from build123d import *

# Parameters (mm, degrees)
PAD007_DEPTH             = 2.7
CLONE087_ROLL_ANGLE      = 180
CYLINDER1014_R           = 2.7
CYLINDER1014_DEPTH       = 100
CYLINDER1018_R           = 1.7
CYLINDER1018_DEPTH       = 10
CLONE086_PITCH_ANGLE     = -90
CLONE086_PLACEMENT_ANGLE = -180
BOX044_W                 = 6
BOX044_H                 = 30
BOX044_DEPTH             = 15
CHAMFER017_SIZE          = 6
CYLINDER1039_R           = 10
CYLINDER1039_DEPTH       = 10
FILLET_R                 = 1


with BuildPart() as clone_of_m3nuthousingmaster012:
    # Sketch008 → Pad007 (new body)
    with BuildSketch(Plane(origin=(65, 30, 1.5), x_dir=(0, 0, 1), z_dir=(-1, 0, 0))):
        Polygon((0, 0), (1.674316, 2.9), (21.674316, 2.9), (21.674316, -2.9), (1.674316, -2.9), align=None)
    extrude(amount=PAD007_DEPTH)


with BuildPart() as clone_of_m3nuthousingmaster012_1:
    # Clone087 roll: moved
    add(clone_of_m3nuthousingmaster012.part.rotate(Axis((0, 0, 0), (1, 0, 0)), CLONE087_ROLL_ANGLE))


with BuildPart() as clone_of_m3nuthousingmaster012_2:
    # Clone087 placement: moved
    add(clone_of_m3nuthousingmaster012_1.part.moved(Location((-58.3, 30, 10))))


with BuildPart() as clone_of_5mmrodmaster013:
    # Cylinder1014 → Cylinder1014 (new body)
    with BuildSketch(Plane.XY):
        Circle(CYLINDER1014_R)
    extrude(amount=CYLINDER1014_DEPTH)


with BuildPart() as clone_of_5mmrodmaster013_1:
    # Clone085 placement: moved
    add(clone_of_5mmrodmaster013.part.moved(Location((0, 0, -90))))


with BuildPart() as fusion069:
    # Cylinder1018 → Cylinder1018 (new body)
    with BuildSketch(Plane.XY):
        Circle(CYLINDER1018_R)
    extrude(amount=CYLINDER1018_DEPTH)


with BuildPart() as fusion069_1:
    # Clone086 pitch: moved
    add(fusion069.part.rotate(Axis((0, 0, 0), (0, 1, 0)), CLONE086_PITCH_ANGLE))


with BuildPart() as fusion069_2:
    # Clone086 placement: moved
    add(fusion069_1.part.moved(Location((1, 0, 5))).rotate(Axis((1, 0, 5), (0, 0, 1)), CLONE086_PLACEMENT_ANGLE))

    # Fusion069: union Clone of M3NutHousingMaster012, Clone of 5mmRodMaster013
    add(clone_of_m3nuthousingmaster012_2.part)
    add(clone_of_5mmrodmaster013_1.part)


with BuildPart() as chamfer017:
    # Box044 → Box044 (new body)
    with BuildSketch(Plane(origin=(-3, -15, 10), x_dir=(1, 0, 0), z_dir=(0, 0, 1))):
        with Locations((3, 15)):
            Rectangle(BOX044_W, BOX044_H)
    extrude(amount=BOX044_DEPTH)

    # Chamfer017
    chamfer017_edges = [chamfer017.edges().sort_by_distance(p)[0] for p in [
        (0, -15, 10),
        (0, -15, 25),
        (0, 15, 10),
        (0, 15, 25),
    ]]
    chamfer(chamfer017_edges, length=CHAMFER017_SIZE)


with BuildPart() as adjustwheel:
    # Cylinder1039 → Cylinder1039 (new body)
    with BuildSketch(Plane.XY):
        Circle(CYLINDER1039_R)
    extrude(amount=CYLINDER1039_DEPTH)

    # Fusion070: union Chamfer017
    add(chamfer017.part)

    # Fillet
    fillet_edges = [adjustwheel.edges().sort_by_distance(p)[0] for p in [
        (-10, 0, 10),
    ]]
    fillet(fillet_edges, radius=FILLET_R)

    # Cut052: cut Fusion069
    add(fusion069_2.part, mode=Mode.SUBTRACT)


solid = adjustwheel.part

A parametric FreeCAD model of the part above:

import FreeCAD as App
import Part
import Sketcher
from FreeCAD import Vector
Q = App.Units.Quantity


def edges_at(feature, points):
    """Names of the edges that pass closest to the given points."""
    edges = feature.Shape.Edges
    near = lambda p: min(range(len(edges)), key=lambda i: edges[i].distToShape(Part.Vertex(*p))[0])
    return sorted({f"Edge{near(p) + 1}" for p in points})

doc = App.newDocument("Part")
params = doc.addObject("Spreadsheet::Sheet", "Params")
for row, (alias, value) in enumerate([
    ("sketch1_height", "20 mm"),
    ("sketch1_width", "5.8 mm"),
    ("pad1_length", "2.7 mm"),
    ("sketch2_diameter", "5.4 mm"),
    ("pad2_length", "100 mm"),
    ("sketch3_diameter", "3.4 mm"),
    ("pad3_length", "10 mm"),
    ("sketch4_width", "6 mm"),
    ("sketch4_height", "30 mm"),
    ("pad4_length", "15 mm"),
    ("chamfer_size", "6 mm"),
    ("sketch5_diameter", "20 mm"),
    ("pad5_length", "10 mm"),
    ("fillet_radius", "1 mm"),
], start=1):
    params.set(f"A{row}", alias)
    params.set(f"B{row}", "=" + value)
    params.setAlias(f"B{row}", alias)

body = doc.addObject("PartDesign::Body", "Body")

sketch1 = body.newObject("Sketcher::SketchObject", "Sketch")
sketch1.AttachmentSupport = (doc.getObject("YZ_Plane"), [""])
sketch1.MapMode = "FlatFace"
sketch1.AttachmentOffset = App.Placement(Vector(0, 0, 65), App.Rotation())
sketch1.addGeometry(Part.LineSegment(Vector(32.9, 3.2, 0), Vector(30, 1.5, 0)), False)
sketch1.addGeometry(Part.LineSegment(Vector(30, 1.5, 0), Vector(27.1, 3.2, 0)), False)
sketch1.addGeometry(Part.LineSegment(Vector(27.1, 3.2, 0), Vector(27.1, 23.2, 0)), False)
sketch1.addGeometry(Part.LineSegment(Vector(27.1, 23.2, 0), Vector(32.9, 23.2, 0)), False)
sketch1.addGeometry(Part.LineSegment(Vector(32.9, 23.2, 0), Vector(32.9, 3.2, 0)), False)
sketch1.addConstraint(Sketcher.Constraint("Coincident", 0, 2, 1, 1))
sketch1.addConstraint(Sketcher.Constraint("Coincident", 1, 2, 2, 1))
sketch1.addConstraint(Sketcher.Constraint("Coincident", 2, 2, 3, 1))
sketch1.addConstraint(Sketcher.Constraint("Coincident", 3, 2, 4, 1))
sketch1.addConstraint(Sketcher.Constraint("Coincident", 4, 2, 0, 1))
sketch1.addConstraint(Sketcher.Constraint("Vertical", 2))
sketch1.addConstraint(Sketcher.Constraint("Horizontal", 3))
sketch1.addConstraint(Sketcher.Constraint("Vertical", 4))
sketch1.addConstraint(Sketcher.Constraint("Horizontal", 1, 2, 4, 2))
sketch1.addConstraint(Sketcher.Constraint("Equal", 0, 1))
sketch1.addConstraint(Sketcher.Constraint("DistanceY", 2, 1, 2, 2, Q("20 mm")))
sketch1.addConstraint(Sketcher.Constraint("Angle", 0, Q("-149.999997 deg")))
sketch1.addConstraint(Sketcher.Constraint("DistanceX", 3, 1, 3, 2, Q("5.8 mm")))
sketch1.addConstraint(Sketcher.Constraint("DistanceX", -1, 1, 0, 2, Q("30 mm")))
sketch1.addConstraint(Sketcher.Constraint("DistanceY", -1, 1, 0, 2, Q("1.5 mm")))
sketch1.setExpression("Constraints[10]", "Params.sketch1_height")
sketch1.setExpression("Constraints[12]", "Params.sketch1_width")
pad1 = body.newObject("PartDesign::Pad", "Pad")
pad1.Profile = sketch1
pad1.setExpression("Length", "Params.pad1_length")
pad1.Reversed = True
body2 = doc.addObject("PartDesign::Body", "Body001")
doc.recompute()

body.Placement = App.Placement(Vector(0, 0, 0), App.Rotation(Vector(1, 0, 0), 180))
boolean = body2.newObject("PartDesign::Boolean", "Boolean")
boolean.Type = "Fuse"
boolean.addObjects([body])
body3 = doc.addObject("PartDesign::Body", "Body002")
doc.recompute()

body2.Placement = App.Placement(Vector(-58.3, 30, 10), App.Rotation(Vector(0, 0, 1), 0))
boolean2 = body3.newObject("PartDesign::Boolean", "Boolean001")
boolean2.Type = "Fuse"
boolean2.addObjects([body2])
body4 = doc.addObject("PartDesign::Body", "Body003")

sketch2 = body4.newObject("Sketcher::SketchObject", "Sketch001")
sketch2.AttachmentSupport = (doc.getObject("XY_Plane003"), [""])
sketch2.MapMode = "FlatFace"
sketch2.addGeometry(Part.Circle(Vector(0, 0, 0), Vector(0, 0, 1), 2.7), False)
sketch2.addConstraint(Sketcher.Constraint("Coincident", 0, 3, -1, 1))
sketch2.addConstraint(Sketcher.Constraint("Diameter", 0, Q("5.4 mm")))
sketch2.setExpression("Constraints[1]", "Params.sketch2_diameter")
pad2 = body4.newObject("PartDesign::Pad", "Pad001")
pad2.Profile = sketch2
pad2.setExpression("Length", "Params.pad2_length")
body5 = doc.addObject("PartDesign::Body", "Body004")
doc.recompute()

body4.Placement = App.Placement(Vector(0, 0, -90), App.Rotation(Vector(0, 0, 1), 0))
boolean3 = body5.newObject("PartDesign::Boolean", "Boolean002")
boolean3.Type = "Fuse"
boolean3.addObjects([body4])
body6 = doc.addObject("PartDesign::Body", "Body005")

sketch3 = body6.newObject("Sketcher::SketchObject", "Sketch002")
sketch3.AttachmentSupport = (doc.getObject("XY_Plane005"), [""])
sketch3.MapMode = "FlatFace"
sketch3.addGeometry(Part.Circle(Vector(0, 0, 0), Vector(0, 0, 1), 1.7), False)
sketch3.addConstraint(Sketcher.Constraint("Coincident", 0, 3, -1, 1))
sketch3.addConstraint(Sketcher.Constraint("Diameter", 0, Q("3.4 mm")))
sketch3.setExpression("Constraints[1]", "Params.sketch3_diameter")
pad3 = body6.newObject("PartDesign::Pad", "Pad002")
pad3.Profile = sketch3
pad3.setExpression("Length", "Params.pad3_length")
body7 = doc.addObject("PartDesign::Body", "Body006")
doc.recompute()

body6.Placement = App.Placement(Vector(0, 0, 0), App.Rotation(Vector(0, 1, 0), 270))
boolean4 = body7.newObject("PartDesign::Boolean", "Boolean003")
boolean4.Type = "Fuse"
boolean4.addObjects([body6])
body8 = doc.addObject("PartDesign::Body", "Body007")
doc.recompute()

body7.Placement = App.Placement(Vector(1, 0, 5), App.Rotation(Vector(0, 0, 1), 180))
boolean5 = body8.newObject("PartDesign::Boolean", "Boolean004")
boolean5.Type = "Fuse"
boolean5.addObjects([body7])
doc.recompute()

boolean6 = body8.newObject("PartDesign::Boolean", "Boolean005")
boolean6.Type = "Fuse"
boolean6.addObjects([body3])
doc.recompute()

boolean7 = body8.newObject("PartDesign::Boolean", "Boolean006")
boolean7.Type = "Fuse"
boolean7.addObjects([body5])
body9 = doc.addObject("PartDesign::Body", "Body008")

sketch4 = body9.newObject("Sketcher::SketchObject", "Sketch003")
sketch4.AttachmentSupport = (doc.getObject("XY_Plane008"), [""])
sketch4.MapMode = "FlatFace"
sketch4.AttachmentOffset = App.Placement(Vector(0, 0, 10), App.Rotation())
sketch4.addGeometry(Part.LineSegment(Vector(-3, 15, 0), Vector(-3, -15, 0)), False)
sketch4.addGeometry(Part.LineSegment(Vector(-3, -15, 0), Vector(3, -15, 0)), False)
sketch4.addGeometry(Part.LineSegment(Vector(3, -15, 0), Vector(3, 15, 0)), False)
sketch4.addGeometry(Part.LineSegment(Vector(3, 15, 0), Vector(-3, 15, 0)), False)
sketch4.addConstraint(Sketcher.Constraint("Coincident", 0, 2, 1, 1))
sketch4.addConstraint(Sketcher.Constraint("Coincident", 1, 2, 2, 1))
sketch4.addConstraint(Sketcher.Constraint("Coincident", 2, 2, 3, 1))
sketch4.addConstraint(Sketcher.Constraint("Coincident", 3, 2, 0, 1))
sketch4.addConstraint(Sketcher.Constraint("Vertical", 0))
sketch4.addConstraint(Sketcher.Constraint("Horizontal", 1))
sketch4.addConstraint(Sketcher.Constraint("Vertical", 2))
sketch4.addConstraint(Sketcher.Constraint("Horizontal", 3))
sketch4.addConstraint(Sketcher.Constraint("Symmetric", 0, 2, 2, 2, -1, 1))
sketch4.addConstraint(Sketcher.Constraint("DistanceX", 1, 1, 1, 2, Q("6 mm")))
sketch4.addConstraint(Sketcher.Constraint("DistanceY", 0, 2, 0, 1, Q("30 mm")))
sketch4.setExpression("Constraints[9]", "Params.sketch4_width")
sketch4.setExpression("Constraints[10]", "Params.sketch4_height")
pad4 = body9.newObject("PartDesign::Pad", "Pad003")
pad4.Profile = sketch4
pad4.setExpression("Length", "Params.pad4_length")
doc.recompute()

chamfer = body9.newObject("PartDesign::Chamfer", "Chamfer")
chamfer.Base = (pad4, edges_at(pad4, [
    (0, -15, 10),
    (0, -15, 25),
    (0, 15, 10),
    (0, 15, 25),
]))
chamfer.setExpression("Size", "Params.chamfer_size")
body10 = doc.addObject("PartDesign::Body", "Body009")

sketch5 = body10.newObject("Sketcher::SketchObject", "Sketch004")
sketch5.AttachmentSupport = (doc.getObject("XY_Plane009"), [""])
sketch5.MapMode = "FlatFace"
sketch5.addGeometry(Part.Circle(Vector(0, 0, 0), Vector(0, 0, 1), 10), False)
sketch5.addConstraint(Sketcher.Constraint("Coincident", 0, 3, -1, 1))
sketch5.addConstraint(Sketcher.Constraint("Diameter", 0, Q("20 mm")))
sketch5.setExpression("Constraints[1]", "Params.sketch5_diameter")
pad5 = body10.newObject("PartDesign::Pad", "Pad004")
pad5.Profile = sketch5
pad5.setExpression("Length", "Params.pad5_length")
doc.recompute()

boolean8 = body10.newObject("PartDesign::Boolean", "Boolean007")
boolean8.Type = "Fuse"
boolean8.addObjects([body9])
doc.recompute()

fillet = body10.newObject("PartDesign::Fillet", "Fillet")
fillet.Base = (boolean8, edges_at(boolean8, [(-10, 0, 10)]))
fillet.setExpression("Radius", "Params.fillet_radius")
doc.recompute()

boolean9 = body10.newObject("PartDesign::Boolean", "Boolean008")
boolean9.Type = "Cut"
boolean9.addObjects([body8])

doc.recompute()
